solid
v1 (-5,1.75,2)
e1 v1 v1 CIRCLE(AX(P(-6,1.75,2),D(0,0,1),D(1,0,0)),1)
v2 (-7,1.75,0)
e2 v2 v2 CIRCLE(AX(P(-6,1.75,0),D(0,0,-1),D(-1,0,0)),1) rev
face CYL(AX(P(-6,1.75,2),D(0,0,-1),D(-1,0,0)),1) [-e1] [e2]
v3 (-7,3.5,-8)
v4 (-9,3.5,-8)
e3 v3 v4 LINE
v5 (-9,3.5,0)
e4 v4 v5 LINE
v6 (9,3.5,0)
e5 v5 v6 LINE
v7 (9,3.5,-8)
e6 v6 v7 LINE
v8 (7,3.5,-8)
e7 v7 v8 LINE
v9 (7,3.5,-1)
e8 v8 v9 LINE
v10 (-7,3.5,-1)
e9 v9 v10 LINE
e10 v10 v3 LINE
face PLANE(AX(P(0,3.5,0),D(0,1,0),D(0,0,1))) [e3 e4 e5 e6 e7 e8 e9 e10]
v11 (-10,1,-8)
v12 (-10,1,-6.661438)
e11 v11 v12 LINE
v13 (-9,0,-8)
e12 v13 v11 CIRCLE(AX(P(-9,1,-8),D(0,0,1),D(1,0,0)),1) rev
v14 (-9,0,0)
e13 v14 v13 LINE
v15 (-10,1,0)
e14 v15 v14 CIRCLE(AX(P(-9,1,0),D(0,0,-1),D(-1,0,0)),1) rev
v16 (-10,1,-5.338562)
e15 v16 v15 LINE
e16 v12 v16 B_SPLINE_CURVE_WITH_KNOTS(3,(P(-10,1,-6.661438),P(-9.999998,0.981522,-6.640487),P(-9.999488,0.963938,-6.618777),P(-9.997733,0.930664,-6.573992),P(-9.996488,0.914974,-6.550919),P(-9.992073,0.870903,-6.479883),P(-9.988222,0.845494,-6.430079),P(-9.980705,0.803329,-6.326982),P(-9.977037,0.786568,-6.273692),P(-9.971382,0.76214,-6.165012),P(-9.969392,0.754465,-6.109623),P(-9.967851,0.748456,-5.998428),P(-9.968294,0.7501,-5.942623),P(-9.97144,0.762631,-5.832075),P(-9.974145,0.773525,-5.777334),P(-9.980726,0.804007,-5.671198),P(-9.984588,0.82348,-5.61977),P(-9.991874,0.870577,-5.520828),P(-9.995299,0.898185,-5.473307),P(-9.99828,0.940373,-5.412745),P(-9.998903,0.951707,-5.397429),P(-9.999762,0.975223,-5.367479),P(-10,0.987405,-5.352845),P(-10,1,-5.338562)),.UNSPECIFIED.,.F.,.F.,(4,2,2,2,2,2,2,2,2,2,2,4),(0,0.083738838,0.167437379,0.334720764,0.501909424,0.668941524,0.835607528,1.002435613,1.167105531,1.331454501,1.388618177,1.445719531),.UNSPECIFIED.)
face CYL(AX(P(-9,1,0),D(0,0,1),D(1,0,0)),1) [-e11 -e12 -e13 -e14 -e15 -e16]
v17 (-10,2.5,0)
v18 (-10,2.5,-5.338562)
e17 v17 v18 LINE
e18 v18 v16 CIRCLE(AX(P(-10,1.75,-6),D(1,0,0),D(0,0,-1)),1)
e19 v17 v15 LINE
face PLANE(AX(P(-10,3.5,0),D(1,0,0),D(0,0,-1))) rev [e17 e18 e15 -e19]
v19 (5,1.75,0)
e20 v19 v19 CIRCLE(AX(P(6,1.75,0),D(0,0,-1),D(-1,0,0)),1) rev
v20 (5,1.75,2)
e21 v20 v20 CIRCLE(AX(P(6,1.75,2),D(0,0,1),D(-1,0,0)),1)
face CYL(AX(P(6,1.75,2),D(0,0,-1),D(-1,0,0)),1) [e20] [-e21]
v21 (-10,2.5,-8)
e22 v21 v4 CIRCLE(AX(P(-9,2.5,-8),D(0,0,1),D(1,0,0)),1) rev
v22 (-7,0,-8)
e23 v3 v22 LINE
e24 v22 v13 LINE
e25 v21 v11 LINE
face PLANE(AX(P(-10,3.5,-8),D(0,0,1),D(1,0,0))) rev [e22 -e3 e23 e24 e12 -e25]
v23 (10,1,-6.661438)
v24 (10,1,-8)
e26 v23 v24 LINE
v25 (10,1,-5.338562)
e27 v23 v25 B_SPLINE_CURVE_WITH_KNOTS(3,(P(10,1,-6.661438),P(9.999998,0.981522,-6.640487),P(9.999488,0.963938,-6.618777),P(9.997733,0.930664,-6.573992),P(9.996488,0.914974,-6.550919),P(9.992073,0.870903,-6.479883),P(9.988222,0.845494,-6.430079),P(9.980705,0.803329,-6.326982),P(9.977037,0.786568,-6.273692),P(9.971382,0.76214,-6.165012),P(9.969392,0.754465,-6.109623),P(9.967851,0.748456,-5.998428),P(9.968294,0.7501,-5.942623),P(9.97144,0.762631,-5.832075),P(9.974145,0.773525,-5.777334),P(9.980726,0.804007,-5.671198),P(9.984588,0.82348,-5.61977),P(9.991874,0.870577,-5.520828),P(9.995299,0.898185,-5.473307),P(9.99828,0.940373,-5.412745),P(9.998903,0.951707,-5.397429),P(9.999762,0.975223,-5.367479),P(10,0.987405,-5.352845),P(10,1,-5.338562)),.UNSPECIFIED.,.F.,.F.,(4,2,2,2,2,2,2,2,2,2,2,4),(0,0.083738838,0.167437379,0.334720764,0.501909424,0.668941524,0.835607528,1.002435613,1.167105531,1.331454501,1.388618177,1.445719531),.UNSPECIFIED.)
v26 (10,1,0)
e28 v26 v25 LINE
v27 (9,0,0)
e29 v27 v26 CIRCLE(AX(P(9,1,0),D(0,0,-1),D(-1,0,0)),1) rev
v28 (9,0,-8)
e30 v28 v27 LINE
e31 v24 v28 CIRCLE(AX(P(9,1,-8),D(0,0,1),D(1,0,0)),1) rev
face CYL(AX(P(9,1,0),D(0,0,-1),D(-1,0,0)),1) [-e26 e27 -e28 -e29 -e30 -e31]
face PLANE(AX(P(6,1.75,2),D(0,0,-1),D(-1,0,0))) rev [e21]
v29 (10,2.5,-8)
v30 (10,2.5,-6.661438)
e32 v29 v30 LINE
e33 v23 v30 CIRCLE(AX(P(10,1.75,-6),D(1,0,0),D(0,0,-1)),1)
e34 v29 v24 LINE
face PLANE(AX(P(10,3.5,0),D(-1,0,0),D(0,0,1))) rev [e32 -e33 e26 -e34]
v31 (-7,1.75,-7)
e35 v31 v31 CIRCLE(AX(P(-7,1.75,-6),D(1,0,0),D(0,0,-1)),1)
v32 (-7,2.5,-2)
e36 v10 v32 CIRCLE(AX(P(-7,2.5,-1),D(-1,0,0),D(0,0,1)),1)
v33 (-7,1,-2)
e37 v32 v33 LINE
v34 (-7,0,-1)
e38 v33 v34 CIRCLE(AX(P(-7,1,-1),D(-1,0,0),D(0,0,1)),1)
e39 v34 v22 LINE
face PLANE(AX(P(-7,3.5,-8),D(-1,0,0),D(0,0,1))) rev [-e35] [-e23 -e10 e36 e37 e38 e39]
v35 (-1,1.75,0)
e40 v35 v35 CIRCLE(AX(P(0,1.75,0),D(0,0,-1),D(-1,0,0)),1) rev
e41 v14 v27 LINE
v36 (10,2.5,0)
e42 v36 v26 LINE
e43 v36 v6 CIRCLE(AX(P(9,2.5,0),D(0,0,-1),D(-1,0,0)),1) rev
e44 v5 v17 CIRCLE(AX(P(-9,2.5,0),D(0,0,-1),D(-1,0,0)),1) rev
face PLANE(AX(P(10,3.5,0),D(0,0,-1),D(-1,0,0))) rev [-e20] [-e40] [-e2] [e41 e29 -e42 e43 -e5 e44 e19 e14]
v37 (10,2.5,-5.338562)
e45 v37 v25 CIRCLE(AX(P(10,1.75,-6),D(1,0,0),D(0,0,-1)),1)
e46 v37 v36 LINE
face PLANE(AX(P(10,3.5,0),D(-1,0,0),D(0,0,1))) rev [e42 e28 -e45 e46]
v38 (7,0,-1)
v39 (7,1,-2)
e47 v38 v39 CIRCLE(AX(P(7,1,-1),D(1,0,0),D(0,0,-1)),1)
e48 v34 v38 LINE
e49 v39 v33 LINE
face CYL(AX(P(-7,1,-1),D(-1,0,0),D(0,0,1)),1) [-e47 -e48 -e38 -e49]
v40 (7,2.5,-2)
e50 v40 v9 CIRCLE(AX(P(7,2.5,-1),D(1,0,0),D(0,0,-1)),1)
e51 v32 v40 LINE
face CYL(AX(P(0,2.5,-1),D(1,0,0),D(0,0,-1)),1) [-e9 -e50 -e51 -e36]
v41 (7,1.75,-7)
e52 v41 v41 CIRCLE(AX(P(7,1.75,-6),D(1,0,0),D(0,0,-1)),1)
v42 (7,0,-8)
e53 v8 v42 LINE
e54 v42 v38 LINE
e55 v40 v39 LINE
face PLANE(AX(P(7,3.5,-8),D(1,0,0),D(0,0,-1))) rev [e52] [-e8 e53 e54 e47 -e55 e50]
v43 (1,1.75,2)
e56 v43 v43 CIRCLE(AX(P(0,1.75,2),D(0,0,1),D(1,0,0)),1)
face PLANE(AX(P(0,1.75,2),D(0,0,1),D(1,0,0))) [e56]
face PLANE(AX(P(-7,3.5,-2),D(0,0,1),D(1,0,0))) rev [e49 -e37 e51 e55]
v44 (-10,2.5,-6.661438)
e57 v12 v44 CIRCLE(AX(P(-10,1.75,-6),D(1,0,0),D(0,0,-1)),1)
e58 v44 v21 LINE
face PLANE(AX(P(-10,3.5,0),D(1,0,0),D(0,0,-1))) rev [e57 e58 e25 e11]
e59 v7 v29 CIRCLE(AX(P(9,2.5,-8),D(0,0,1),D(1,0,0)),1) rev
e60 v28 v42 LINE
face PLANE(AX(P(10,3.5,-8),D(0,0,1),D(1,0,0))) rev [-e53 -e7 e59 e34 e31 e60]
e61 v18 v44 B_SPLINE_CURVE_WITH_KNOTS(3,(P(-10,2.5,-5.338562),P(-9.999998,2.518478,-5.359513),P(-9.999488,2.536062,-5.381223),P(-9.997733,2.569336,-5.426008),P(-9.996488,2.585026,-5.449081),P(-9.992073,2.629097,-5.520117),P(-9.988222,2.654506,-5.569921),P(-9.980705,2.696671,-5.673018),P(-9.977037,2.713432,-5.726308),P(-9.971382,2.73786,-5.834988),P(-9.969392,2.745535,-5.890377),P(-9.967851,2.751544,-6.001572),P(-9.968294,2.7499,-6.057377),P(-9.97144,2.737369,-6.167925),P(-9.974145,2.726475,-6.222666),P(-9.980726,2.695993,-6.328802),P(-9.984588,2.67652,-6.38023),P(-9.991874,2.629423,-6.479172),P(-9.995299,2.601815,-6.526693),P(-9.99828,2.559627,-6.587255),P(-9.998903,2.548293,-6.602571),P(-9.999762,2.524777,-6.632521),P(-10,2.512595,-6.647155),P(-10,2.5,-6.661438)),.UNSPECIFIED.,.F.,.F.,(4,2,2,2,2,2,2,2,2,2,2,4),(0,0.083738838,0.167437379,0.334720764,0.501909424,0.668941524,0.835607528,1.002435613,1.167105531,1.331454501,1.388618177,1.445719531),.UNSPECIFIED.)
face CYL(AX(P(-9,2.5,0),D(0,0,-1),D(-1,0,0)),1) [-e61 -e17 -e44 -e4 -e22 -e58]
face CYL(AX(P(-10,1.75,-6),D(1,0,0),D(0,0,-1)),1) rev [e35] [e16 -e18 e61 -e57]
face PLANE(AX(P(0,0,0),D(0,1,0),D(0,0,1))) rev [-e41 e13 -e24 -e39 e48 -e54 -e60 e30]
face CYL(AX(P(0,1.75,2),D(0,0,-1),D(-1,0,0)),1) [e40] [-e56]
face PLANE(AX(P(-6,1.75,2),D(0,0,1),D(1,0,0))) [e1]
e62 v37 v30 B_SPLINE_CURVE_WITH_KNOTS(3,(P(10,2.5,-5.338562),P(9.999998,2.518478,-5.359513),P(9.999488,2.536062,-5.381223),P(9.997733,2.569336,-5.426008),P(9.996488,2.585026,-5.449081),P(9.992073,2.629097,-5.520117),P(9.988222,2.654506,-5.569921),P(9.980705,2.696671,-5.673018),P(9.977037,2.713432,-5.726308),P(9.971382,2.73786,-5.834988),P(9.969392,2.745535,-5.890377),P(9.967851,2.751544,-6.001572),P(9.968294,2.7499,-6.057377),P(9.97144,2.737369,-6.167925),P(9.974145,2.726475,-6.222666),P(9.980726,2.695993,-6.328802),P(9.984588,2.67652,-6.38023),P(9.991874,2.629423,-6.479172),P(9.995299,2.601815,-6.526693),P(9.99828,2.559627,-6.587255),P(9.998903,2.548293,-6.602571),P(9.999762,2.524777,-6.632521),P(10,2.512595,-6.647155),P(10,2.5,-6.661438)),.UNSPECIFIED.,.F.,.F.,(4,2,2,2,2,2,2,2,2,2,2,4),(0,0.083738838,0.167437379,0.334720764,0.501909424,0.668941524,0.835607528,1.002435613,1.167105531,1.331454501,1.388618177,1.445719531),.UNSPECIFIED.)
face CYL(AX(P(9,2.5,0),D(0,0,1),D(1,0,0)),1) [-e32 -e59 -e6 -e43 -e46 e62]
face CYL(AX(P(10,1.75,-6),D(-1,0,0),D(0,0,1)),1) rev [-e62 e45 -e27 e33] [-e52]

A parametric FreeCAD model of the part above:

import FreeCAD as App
import Part
import Sketcher
from FreeCAD import Vector
Q = App.Units.Quantity


def edges_at(feature, points):
    """Names of the edges that pass closest to the given points."""
    edges = feature.Shape.Edges
    near = lambda p: min(range(len(edges)), key=lambda i: edges[i].distToShape(Part.Vertex(*p))[0])
    return sorted({f"Edge{near(p) + 1}" for p in points})

doc = App.newDocument("Part")
params = doc.addObject("Spreadsheet::Sheet", "Params")
for row, (alias, value) in enumerate([
    ("sketch1_width", "20 mm"),
    ("sketch1_width2", "3 mm"),
    ("sketch1_height", "8 mm"),
    ("sketch1_height2", "6 mm"),
    ("pad1_length", "3.5 mm"),
    ("sketch2_diameter", "2 mm"),
    ("pad2_length", "2 mm"),
    ("fillet_radius", "1 mm"),
    ("sketch3_diameter", "2 mm"),
], start=1):
    params.set(f"A{row}", alias)
    params.set(f"B{row}", "=" + value)
    params.setAlias(f"B{row}", alias)

body = doc.addObject("PartDesign::Body", "Body")

# Sketch on XZ plane
sketch1 = body.newObject("Sketcher::SketchObject", "Sketch")
sketch1.AttachmentSupport = (doc.getObject("XZ_Plane"), [""])
sketch1.MapMode = "FlatFace"
sketch1.addGeometry([
    Part.LineSegment(Vector(-10, 0, 0), Vector(10, 0, 0)),  # 0
    Part.LineSegment(Vector(10, 0, 0), Vector(10, -8, 0)),  # 1
    Part.LineSegment(Vector(10, -8, 0), Vector(7, -8, 0)),  # 2
    Part.LineSegment(Vector(7, -8, 0), Vector(7, -2, 0)),  # 3
    Part.LineSegment(Vector(7, -2, 0), Vector(-7, -2, 0)),  # 4
    Part.LineSegment(Vector(-7, -2, 0), Vector(-7, -8, 0)),  # 5
    Part.LineSegment(Vector(-7, -8, 0), Vector(-10, -8, 0)),  # 6
    Part.LineSegment(Vector(-10, -8, 0), Vector(-10, 0, 0)),  # 7
], False)
sketch1.addConstraint([
    Sketcher.Constraint("Coincident", 0, 2, 1, 1),
    Sketcher.Constraint("Coincident", 1, 2, 2, 1),
    Sketcher.Constraint("Coincident", 2, 2, 3, 1),
    Sketcher.Constraint("Coincident", 3, 2, 4, 1),
    Sketcher.Constraint("Coincident", 4, 2, 5, 1),
    Sketcher.Constraint("Coincident", 5, 2, 6, 1),
    Sketcher.Constraint("Coincident", 6, 2, 7, 1),
    Sketcher.Constraint("Coincident", 7, 2, 0, 1),
    Sketcher.Constraint("Horizontal", 0),
    Sketcher.Constraint("Vertical", 1),
    Sketcher.Constraint("Horizontal", 2),
    Sketcher.Constraint("Vertical", 3),
    Sketcher.Constraint("Horizontal", 4),
    Sketcher.Constraint("Vertical", 5),
    Sketcher.Constraint("Horizontal", 6),
    Sketcher.Constraint("Vertical", 7),
    Sketcher.Constraint("Symmetric", 0, 2, 7, 2, -1, 1),
    Sketcher.Constraint("Symmetric", 2, 2, 5, 2, -2),
    Sketcher.Constraint("DistanceX", 0, 1, 0, 2, Q("20 mm")),
    Sketcher.Constraint("DistanceX", 2, 2, 2, 1, Q("3 mm")),
    Sketcher.Constraint("DistanceY", 1, 2, 1, 1, Q("8 mm")),
    Sketcher.Constraint("DistanceY", 3, 1, 3, 2, Q("6 mm")),
])
sketch1.setExpression("Constraints[18]", "Params.sketch1_width")
sketch1.setExpression("Constraints[19]", "Params.sketch1_width2")
sketch1.setExpression("Constraints[20]", "Params.sketch1_height")
sketch1.setExpression("Constraints[21]", "Params.sketch1_height2")
pad1 = body.newObject("PartDesign::Pad", "Pad")
pad1.Profile = sketch1
pad1.setExpression("Length", "Params.pad1_length")
pad1.Reversed = True

# Sketch on XY plane
sketch2 = body.newObject("Sketcher::SketchObject", "Sketch001")
sketch2.AttachmentSupport = (doc.getObject("XY_Plane"), [""])
sketch2.MapMode = "FlatFace"
sketch2.addGeometry([
    Part.Circle(Vector(0, 1.8, 0), Vector(0, 0, 1), 1),
    Part.Circle(Vector(-6, 1.8, 0), Vector(0, 0, 1), 1),
    Part.Circle(Vector(6, 1.8, 0), Vector(0, 0, 1), 1),
], False)
sketch2.addConstraint([
    Sketcher.Constraint("Equal", 0, 1),
    Sketcher.Constraint("Equal", 1, 2),
    Sketcher.Constraint("Symmetric", 1, 3, 2, 3, -2),
    Sketcher.Constraint("PointOnObject", 0, 3, -2),
    Sketcher.Constraint("Horizontal", 0, 3, 1, 3),
    Sketcher.Constraint("Diameter", 0, Q("2 mm")),
    Sketcher.Constraint("DistanceX", 1, 3, -1, 1, Q("6 mm")),
    Sketcher.Constraint("DistanceY", -1, 1, 0, 3, Q("1.75 mm")),
])
sketch2.setExpression("Constraints[5]", "Params.sketch2_diameter")
pad2 = body.newObject("PartDesign::Pad", "Pad001")
pad2.Profile = sketch2
pad2.setExpression("Length", "Params.pad2_length")
doc.recompute()

fillet = body.newObject("PartDesign::Fillet", "Fillet")
fillet.Base = (pad2, edges_at(pad2, [
    (0, 0, -2),
    (-10, 3.5, -4),
    (10, 3.5, -4),
    (0, 3.5, -2),
    (10, 0, -4),
    (-10, 0, -4),
]))
fillet.setExpression("Radius", "Params.fillet_radius")

# Sketch on YZ plane
sketch3 = body.newObject("Sketcher::SketchObject", "Sketch002")
sketch3.AttachmentSupport = (doc.getObject("YZ_Plane"), [""])
sketch3.MapMode = "FlatFace"
sketch3.AttachmentOffset = App.Placement(Vector(0, 0, -7), App.Rotation())
sketch3.addGeometry(Part.Circle(Vector(1.8, -6, 0), Vector(0, 0, 1), 1), False)
sketch3.addConstraint([
    Sketcher.Constraint("Diameter", 0, Q("2 mm")),
    Sketcher.Constraint("DistanceY", 0, 3, -1, 1, Q("6 mm")),
    Sketcher.Constraint("DistanceX", -1, 1, 0, 3, Q("1.75 mm")),
])
sketch3.setExpression("Constraints[0]", "Params.sketch3_diameter")
pocket1 = body.newObject("PartDesign::Pocket", "Pocket")
pocket1.Profile = sketch3
pocket1.Type = "ThroughAll"
doc.recompute()

mirrored = body.newObject("PartDesign::Mirrored", "Mirrored")
mirrored.Originals = [pocket1]
mirrored.MirrorPlane = (doc.getObject("YZ_Plane"), [""])
body.Tip = mirrored

doc.recompute()
